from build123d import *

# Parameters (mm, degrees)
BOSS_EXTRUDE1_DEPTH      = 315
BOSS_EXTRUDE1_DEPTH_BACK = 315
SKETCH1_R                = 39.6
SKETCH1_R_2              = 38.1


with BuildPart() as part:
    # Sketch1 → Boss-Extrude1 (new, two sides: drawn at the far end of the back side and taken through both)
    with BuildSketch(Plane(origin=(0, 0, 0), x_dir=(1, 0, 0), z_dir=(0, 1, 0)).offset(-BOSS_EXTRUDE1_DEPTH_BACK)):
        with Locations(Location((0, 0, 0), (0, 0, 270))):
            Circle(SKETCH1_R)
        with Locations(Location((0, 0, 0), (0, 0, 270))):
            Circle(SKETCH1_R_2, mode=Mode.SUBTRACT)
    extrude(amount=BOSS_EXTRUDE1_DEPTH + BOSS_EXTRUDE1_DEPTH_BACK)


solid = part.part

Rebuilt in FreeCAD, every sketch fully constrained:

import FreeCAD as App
import Part
import Sketcher

V = App.Vector

doc = App.newDocument("Part")
body = doc.addObject("PartDesign::Body", "Body")

# Sketch on XZ plane
sketch1 = body.newObject("Sketcher::SketchObject", "Sketch")
sketch1.AttachmentSupport = (doc.getObject("XZ_Plane"), [""])
sketch1.MapMode = "FlatFace"
sketch1.addGeometry(Part.Circle(V(0, 0, 0), V(0, 0, 1), 39.6), False)
sketch1.addGeometry(Part.Circle(V(0, 0, 0), V(0, 0, 1), 38.1), False)
sketch1.addConstraint(Sketcher.Constraint("Coincident", 0, 3, -1, 1))
sketch1.addConstraint(Sketcher.Constraint("Coincident", 1, 3, -1, 1))
sketch1.addConstraint(Sketcher.Constraint("Diameter", 0, 79.2))
sketch1.addConstraint(Sketcher.Constraint("Diameter", 1, 76.2))
pad1 = body.newObject("PartDesign::Pad", "Pad")
pad1.Profile = sketch1
pad1.Type = "TwoLengths"
pad1.Length = 315
pad1.Length2 = 315
pad1.Reversed = True

doc.recompute()
